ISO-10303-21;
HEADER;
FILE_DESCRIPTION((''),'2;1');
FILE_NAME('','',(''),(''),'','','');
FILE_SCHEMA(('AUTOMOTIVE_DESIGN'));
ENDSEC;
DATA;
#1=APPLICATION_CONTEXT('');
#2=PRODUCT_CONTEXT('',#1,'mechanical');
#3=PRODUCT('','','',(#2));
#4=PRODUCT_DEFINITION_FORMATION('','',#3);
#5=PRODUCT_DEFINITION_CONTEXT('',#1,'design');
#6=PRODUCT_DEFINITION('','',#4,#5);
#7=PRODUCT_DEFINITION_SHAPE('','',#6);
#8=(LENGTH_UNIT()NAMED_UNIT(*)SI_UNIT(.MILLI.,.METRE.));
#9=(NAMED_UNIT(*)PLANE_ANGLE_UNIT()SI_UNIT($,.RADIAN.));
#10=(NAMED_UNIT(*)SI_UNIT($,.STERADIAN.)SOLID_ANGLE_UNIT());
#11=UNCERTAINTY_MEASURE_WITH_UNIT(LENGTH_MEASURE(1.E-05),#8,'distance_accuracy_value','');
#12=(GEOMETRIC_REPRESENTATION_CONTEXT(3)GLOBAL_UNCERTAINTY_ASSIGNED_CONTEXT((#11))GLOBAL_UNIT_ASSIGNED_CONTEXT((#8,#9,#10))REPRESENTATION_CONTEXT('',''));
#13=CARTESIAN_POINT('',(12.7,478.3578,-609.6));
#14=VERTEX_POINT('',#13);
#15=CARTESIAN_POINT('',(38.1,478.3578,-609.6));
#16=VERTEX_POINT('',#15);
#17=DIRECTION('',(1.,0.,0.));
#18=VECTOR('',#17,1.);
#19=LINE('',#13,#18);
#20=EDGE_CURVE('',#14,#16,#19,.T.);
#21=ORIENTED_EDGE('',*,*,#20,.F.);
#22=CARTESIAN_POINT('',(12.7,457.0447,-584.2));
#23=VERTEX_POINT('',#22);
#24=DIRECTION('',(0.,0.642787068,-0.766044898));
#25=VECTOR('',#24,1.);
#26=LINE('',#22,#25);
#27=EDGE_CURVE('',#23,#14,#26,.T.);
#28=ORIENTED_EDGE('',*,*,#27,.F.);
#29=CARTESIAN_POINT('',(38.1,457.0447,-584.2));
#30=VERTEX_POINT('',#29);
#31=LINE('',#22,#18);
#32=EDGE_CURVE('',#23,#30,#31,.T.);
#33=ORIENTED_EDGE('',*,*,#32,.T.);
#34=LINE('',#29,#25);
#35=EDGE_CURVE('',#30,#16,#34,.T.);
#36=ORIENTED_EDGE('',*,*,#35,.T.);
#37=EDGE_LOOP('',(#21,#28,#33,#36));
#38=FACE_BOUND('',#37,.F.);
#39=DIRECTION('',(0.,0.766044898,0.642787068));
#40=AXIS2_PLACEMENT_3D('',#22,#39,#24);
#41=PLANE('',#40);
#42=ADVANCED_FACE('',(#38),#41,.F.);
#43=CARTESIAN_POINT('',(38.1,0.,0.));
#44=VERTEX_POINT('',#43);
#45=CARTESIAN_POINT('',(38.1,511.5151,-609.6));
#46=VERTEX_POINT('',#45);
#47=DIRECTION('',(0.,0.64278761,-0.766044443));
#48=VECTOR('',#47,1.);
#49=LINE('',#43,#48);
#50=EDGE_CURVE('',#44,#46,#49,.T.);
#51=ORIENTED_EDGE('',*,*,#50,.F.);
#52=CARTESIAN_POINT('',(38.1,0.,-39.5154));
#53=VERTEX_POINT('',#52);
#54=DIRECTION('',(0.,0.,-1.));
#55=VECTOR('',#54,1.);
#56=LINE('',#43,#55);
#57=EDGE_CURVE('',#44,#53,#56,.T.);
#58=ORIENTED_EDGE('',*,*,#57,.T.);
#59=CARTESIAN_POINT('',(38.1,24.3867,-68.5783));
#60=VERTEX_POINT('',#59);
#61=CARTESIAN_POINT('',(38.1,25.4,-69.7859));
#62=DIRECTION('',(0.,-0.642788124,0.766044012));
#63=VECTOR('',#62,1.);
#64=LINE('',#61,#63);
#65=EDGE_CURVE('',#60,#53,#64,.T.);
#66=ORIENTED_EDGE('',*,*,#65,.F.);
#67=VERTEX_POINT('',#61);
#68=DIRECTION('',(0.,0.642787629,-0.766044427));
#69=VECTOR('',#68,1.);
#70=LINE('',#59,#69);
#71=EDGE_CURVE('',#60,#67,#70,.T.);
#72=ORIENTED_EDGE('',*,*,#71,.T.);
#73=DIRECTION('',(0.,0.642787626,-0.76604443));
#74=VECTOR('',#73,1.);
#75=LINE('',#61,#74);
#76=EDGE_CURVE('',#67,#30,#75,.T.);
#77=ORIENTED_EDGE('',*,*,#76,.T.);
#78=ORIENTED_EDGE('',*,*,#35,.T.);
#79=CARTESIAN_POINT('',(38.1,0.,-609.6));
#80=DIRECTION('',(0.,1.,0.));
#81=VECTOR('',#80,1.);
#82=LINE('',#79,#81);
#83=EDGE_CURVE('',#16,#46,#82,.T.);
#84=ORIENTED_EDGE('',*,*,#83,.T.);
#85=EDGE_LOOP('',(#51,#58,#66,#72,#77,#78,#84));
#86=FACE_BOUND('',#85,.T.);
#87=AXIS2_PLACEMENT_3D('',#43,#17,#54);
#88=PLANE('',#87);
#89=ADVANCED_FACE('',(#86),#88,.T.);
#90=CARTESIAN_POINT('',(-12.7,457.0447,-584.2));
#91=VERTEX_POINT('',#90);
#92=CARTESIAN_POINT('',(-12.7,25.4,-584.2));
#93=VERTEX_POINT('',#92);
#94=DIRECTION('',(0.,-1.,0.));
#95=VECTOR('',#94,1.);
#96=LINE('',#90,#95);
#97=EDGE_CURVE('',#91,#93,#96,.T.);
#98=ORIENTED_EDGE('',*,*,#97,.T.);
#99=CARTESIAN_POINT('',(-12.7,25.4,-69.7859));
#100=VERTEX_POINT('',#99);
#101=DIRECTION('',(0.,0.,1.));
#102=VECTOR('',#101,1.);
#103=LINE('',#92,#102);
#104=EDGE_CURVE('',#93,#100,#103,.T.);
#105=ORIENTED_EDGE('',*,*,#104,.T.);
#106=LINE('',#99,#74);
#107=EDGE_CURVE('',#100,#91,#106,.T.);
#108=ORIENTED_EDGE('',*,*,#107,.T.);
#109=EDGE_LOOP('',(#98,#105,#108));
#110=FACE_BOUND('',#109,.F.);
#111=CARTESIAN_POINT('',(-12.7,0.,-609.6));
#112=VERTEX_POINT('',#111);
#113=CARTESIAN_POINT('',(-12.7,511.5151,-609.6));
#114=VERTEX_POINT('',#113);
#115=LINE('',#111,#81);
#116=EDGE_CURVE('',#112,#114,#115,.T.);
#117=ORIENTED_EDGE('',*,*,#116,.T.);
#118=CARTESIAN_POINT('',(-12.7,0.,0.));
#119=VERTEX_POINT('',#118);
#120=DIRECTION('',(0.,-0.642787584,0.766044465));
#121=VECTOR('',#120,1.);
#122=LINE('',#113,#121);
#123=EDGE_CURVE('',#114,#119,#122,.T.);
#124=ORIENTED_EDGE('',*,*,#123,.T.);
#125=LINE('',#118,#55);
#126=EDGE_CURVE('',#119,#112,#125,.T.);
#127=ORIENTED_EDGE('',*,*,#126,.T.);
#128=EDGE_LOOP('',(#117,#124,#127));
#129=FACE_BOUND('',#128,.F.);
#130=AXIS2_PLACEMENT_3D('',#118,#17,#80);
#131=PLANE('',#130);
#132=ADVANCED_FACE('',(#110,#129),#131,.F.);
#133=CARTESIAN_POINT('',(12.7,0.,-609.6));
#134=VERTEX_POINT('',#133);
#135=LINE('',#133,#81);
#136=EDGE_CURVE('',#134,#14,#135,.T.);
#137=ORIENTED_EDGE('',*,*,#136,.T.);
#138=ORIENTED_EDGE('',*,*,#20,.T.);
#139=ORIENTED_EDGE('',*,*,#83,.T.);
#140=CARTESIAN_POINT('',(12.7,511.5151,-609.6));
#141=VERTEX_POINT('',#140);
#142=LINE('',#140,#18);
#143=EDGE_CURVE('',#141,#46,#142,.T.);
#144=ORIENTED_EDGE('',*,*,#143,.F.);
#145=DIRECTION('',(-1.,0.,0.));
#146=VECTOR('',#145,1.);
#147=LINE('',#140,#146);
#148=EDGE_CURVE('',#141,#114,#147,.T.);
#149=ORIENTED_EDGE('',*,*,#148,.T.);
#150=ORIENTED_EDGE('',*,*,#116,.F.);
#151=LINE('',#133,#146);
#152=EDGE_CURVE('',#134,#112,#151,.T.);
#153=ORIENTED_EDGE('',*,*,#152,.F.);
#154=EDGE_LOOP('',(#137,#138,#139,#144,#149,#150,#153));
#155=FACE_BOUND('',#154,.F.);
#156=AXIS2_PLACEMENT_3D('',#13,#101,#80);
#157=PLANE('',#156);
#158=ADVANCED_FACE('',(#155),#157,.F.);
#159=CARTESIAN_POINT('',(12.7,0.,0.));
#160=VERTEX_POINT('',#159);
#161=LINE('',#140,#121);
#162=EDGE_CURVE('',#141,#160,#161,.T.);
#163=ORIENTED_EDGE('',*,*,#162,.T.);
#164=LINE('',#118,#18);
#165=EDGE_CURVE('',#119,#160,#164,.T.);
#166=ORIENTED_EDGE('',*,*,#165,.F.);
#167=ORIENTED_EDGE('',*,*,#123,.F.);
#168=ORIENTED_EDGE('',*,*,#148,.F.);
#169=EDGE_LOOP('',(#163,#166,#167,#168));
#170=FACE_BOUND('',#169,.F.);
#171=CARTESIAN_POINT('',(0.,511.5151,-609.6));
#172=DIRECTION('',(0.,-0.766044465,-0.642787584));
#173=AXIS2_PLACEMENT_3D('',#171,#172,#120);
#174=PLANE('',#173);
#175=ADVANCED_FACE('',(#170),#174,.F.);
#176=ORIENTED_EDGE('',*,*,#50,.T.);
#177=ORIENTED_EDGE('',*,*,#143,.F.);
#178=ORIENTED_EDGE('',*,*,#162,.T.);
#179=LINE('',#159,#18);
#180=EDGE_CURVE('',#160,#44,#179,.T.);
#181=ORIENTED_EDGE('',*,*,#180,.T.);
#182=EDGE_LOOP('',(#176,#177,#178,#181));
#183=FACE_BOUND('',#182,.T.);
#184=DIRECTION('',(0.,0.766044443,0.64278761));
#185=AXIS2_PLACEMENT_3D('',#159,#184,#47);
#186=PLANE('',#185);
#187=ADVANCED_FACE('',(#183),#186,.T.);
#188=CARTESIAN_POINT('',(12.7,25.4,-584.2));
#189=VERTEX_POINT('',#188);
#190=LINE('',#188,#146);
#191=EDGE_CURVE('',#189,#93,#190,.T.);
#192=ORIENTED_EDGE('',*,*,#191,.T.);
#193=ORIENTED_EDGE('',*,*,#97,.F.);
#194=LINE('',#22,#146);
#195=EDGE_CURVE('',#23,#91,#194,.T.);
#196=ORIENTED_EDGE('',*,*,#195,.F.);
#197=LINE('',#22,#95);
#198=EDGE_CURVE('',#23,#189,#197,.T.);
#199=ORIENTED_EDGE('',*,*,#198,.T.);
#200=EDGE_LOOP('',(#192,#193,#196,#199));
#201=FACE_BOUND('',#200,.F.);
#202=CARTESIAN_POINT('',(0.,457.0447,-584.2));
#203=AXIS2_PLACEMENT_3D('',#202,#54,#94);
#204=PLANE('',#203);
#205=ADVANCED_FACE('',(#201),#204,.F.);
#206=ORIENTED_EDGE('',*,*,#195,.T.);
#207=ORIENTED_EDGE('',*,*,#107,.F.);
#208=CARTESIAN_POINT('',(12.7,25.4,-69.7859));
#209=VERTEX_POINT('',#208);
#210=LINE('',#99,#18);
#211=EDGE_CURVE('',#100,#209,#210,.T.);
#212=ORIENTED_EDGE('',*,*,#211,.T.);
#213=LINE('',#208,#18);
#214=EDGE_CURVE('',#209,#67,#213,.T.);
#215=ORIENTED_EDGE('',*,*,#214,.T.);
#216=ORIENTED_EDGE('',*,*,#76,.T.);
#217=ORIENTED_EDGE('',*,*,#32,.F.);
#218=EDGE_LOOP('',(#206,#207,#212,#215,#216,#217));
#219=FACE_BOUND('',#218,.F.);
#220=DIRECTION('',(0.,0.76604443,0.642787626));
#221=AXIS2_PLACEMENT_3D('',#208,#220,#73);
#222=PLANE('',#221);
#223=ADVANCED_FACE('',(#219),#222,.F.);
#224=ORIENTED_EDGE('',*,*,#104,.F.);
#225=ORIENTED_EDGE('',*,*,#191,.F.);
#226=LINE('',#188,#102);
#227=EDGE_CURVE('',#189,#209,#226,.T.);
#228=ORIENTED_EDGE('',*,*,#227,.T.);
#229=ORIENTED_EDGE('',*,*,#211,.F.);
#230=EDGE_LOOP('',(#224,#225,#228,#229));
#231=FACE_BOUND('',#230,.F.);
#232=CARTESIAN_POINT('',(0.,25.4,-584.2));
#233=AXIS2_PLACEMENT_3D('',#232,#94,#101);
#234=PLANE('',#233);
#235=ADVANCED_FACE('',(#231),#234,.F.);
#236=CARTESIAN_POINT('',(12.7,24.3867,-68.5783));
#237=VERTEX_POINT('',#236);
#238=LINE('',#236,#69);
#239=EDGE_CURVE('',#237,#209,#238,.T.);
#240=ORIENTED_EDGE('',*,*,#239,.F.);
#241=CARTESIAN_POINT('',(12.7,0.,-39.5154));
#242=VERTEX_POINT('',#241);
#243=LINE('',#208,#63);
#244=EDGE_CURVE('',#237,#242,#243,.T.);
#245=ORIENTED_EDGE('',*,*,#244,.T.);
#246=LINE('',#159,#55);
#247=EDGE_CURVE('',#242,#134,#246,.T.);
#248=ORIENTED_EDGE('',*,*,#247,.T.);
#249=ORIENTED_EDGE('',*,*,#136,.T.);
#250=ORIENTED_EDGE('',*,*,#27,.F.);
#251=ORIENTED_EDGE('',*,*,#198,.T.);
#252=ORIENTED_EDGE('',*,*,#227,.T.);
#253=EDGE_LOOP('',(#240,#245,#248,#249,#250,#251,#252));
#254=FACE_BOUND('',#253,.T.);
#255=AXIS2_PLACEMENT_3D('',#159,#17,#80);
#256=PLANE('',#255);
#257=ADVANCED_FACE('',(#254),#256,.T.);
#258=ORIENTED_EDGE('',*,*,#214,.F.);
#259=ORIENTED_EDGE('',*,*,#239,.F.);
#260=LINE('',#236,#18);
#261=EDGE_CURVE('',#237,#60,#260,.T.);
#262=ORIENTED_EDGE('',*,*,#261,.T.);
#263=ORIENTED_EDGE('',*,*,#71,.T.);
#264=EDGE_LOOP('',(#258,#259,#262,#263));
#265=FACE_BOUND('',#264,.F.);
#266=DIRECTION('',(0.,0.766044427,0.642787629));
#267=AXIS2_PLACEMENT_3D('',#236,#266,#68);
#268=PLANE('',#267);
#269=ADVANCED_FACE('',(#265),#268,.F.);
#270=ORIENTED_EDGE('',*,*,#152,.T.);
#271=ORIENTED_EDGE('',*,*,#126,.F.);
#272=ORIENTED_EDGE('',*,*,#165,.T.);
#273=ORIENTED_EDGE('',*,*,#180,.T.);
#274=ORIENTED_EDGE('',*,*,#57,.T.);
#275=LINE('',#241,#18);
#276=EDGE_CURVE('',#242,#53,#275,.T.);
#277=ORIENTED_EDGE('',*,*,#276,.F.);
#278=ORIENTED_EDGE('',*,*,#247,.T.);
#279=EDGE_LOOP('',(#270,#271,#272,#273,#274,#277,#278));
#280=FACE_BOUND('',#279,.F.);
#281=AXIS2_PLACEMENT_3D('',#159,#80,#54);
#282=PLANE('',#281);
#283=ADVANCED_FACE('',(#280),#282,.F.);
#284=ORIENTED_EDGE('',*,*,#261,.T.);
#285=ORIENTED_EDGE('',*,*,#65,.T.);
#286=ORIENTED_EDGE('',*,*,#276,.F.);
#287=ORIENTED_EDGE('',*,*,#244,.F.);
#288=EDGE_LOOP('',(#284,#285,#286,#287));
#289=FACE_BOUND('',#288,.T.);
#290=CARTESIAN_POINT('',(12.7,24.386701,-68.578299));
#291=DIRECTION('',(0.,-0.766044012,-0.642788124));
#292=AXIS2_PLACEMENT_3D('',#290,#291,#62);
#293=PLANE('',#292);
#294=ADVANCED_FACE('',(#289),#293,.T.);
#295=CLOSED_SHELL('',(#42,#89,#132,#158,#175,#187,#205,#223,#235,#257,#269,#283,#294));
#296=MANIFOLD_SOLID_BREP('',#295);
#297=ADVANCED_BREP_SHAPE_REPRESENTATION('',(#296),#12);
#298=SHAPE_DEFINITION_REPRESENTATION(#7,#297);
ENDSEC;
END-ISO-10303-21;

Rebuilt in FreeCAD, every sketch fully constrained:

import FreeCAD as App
import Part
import Sketcher

V = App.Vector
Q = App.Units.Quantity


def add_polygon(sketch, points):
    """Adds a closed chain of lines whose ends are joined by coincident constraints."""
    first, n = sketch.GeometryCount, len(points)
    for a, b in zip(points, points[1:] + points[:1]):
        sketch.addGeometry(Part.LineSegment(App.Vector(*a, 0), App.Vector(*b, 0)), False)
    for i in range(n):
        sketch.addConstraint(Sketcher.Constraint("Coincident", first + i, 2, first + (i + 1) % n, 1))

doc = App.newDocument("Part")
params = doc.addObject("Spreadsheet::Sheet", "Params")
for row, (alias, value) in enumerate([
    ("sketch1_height", "24 in"),
    ("pad1_length", "1 in"),
    ("pad2_length", "1 in"),
], start=1):
    params.set(f"A{row}", alias)
    params.set(f"B{row}", "=" + value)
    params.setAlias(f"B{row}", alias)

body = doc.addObject("PartDesign::Body", "Body")

sketch1 = body.newObject("Sketcher::SketchObject", "Sketch")
sketch1.AttachmentSupport = (doc.getObject("YZ_Plane"), [""])
sketch1.MapMode = "FlatFace"
add_polygon(sketch1, [(512, -610), (0, 0), (0, -610)])
add_polygon(sketch1, [(25, -584), (25, -70), (457, -584)])
sketch1.addConstraint([
    Sketcher.Constraint("Vertical", 1),
    Sketcher.Constraint("Horizontal", 2),
    Sketcher.Constraint("Vertical", 3),
    Sketcher.Constraint("Horizontal", 5),
    Sketcher.Constraint("Coincident", 0, 2, -1, 1),
    Sketcher.Constraint("Parallel", 0, 4),
    Sketcher.Constraint("DistanceY", 1, 2, 1, 1, Q("24 in")),
    Sketcher.Constraint("DistanceX", -1, 1, 3, 2, Q("1 in")),
    Sketcher.Constraint("DistanceY", 2, 2, 4, 2, Q("1 in")),
    Sketcher.Constraint("Angle", 0, Q("130 deg")),
    Sketcher.Constraint("Distance", 4, Q("26.4378 in")),
])
sketch1.setExpression("Constraints[12]", "Params.sketch1_height")
pad1 = body.newObject("PartDesign::Pad", "Pad")
pad1.Profile = sketch1
pad1.setExpression("Length", "Params.pad1_length")
pad1.Midplane = True

sketch2 = body.newObject("Sketcher::SketchObject", "Sketch001")
sketch2.AttachmentSupport = (doc.getObject("YZ_Plane"), [""])
sketch2.MapMode = "FlatFace"
sketch2.AttachmentOffset = App.Placement(V(0, 0, 0.5 * 25.4), App.Rotation())
add_polygon(sketch2, [(511.5, -609.6), (0, 0), (0, -39.5), (24.4, -68.6), (25.4, -69.8), (457, -584.2), (478.4, -609.6)])
sketch2.addConstraint([
    Sketcher.Constraint("Vertical", 1),
    Sketcher.Constraint("Horizontal", 6),
    Sketcher.Constraint("Coincident", 0, 2, -1, 1),
    Sketcher.Constraint("Parallel", 0, 2),
    Sketcher.Constraint("Parallel", 2, 3),
    Sketcher.Constraint("Parallel", 2, 4),
    Sketcher.Constraint("Parallel", 4, 5),
    Sketcher.Constraint("DistanceX", -1, 1, 3, 2, Q("1 in")),
    Sketcher.Constraint("DistanceY", 4, 2, -1, 1, Q("23 in")),
    Sketcher.Constraint("DistanceY", 5, 2, -1, 1, Q("24 in")),
    Sketcher.Constraint("Angle", 0, Q("130 deg")),
    Sketcher.Constraint("DistanceX", 6, 1, 6, 2, Q("1.3054 in")),
    Sketcher.Constraint("DistanceX", -1, 1, 2, 2, Q("0.9601 in")),
])
pad2 = body.newObject("PartDesign::Pad", "Pad001")
pad2.Profile = sketch2
pad2.setExpression("Length", "Params.pad2_length")

doc.recompute()
